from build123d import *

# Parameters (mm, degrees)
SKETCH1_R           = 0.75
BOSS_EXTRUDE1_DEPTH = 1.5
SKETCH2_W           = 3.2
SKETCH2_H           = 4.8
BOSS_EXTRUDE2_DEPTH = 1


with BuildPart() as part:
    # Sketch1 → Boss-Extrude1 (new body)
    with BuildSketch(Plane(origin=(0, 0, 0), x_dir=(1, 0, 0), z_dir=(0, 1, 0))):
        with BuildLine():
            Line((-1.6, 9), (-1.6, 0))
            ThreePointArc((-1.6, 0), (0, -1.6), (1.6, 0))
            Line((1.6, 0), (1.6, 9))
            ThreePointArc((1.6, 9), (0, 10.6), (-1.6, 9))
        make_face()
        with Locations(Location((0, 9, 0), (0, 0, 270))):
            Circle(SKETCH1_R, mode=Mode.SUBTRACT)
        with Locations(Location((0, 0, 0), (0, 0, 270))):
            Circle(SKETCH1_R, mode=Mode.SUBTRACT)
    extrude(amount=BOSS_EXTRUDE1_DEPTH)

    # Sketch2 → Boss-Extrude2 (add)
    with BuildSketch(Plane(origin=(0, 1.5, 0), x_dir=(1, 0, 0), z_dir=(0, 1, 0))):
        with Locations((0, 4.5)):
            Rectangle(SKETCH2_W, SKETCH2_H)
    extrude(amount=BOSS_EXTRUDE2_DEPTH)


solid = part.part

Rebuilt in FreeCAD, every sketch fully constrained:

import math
import FreeCAD as App
import Part
import Sketcher
from FreeCAD import Vector

doc = App.newDocument("Part")
body = doc.addObject("PartDesign::Body", "Body")

sketch1 = body.newObject("Sketcher::SketchObject", "Sketch")
sketch1.AttachmentSupport = (doc.getObject("XZ_Plane"), [""])
sketch1.MapMode = "FlatFace"
sketch1.addGeometry(Part.LineSegment(Vector(-1.6, -9, 0), Vector(-1.6, 0, 0)), False)
sketch1.addGeometry(Part.ArcOfCircle(Part.Circle(Vector(0, 0, 0), Vector(0, 0, 1), 1.6), math.radians(0), math.radians(180)), False)
sketch1.addGeometry(Part.LineSegment(Vector(1.6, 0, 0), Vector(1.6, -9, 0)), False)
sketch1.addGeometry(Part.ArcOfCircle(Part.Circle(Vector(0, -9, 0), Vector(0, 0, 1), 1.6), math.radians(180), math.radians(360)), False)
sketch1.addGeometry(Part.Circle(Vector(0, 0, 0), Vector(0, 0, 1), 0.8), False)
sketch1.addGeometry(Part.Circle(Vector(0, -9, 0), Vector(0, 0, 1), 0.8), False)
sketch1.addConstraint(Sketcher.Constraint("Tangent", 0, 2, 1, 2))
sketch1.addConstraint(Sketcher.Constraint("Tangent", 1, 1, 2, 1))
sketch1.addConstraint(Sketcher.Constraint("Tangent", 2, 2, 3, 2))
sketch1.addConstraint(Sketcher.Constraint("Tangent", 3, 1, 0, 1))
sketch1.addConstraint(Sketcher.Constraint("Vertical", 0))
sketch1.addConstraint(Sketcher.Constraint("Vertical", 2))
sketch1.addConstraint(Sketcher.Constraint("Coincident", 1, 3, -1, 1))
sketch1.addConstraint(Sketcher.Constraint("Coincident", 4, 3, -1, 1))
sketch1.addConstraint(Sketcher.Constraint("Coincident", 5, 3, 3, 3))
sketch1.addConstraint(Sketcher.Constraint("Equal", 4, 5))
sketch1.addConstraint(Sketcher.Constraint("Diameter", 4, 1.5))
sketch1.addConstraint(Sketcher.Constraint("Radius", 1, 1.6))
sketch1.addConstraint(Sketcher.Constraint("DistanceY", 0, 1, 0, 2, 9.0))
pad1 = body.newObject("PartDesign::Pad", "Pad")
pad1.Profile = sketch1
pad1.Length = 1.5
pad1.Reversed = True

sketch2 = body.newObject("Sketcher::SketchObject", "Sketch001")
sketch2.AttachmentSupport = (doc.getObject("XZ_Plane"), [""])
sketch2.MapMode = "FlatFace"
sketch2.AttachmentOffset = App.Placement(Vector(0, 0, -1.5), App.Rotation())
sketch2.addGeometry(Part.LineSegment(Vector(-1.6, -6.9, 0), Vector(-1.6, -2.1, 0)), False)
sketch2.addGeometry(Part.LineSegment(Vector(-1.6, -2.1, 0), Vector(1.6, -2.1, 0)), False)
sketch2.addGeometry(Part.LineSegment(Vector(1.6, -2.1, 0), Vector(1.6, -6.9, 0)), False)
sketch2.addGeometry(Part.LineSegment(Vector(1.6, -6.9, 0), Vector(-1.6, -6.9, 0)), False)
sketch2.addConstraint(Sketcher.Constraint("Coincident", 0, 2, 1, 1))
sketch2.addConstraint(Sketcher.Constraint("Coincident", 1, 2, 2, 1))
sketch2.addConstraint(Sketcher.Constraint("Coincident", 2, 2, 3, 1))
sketch2.addConstraint(Sketcher.Constraint("Coincident", 3, 2, 0, 1))
sketch2.addConstraint(Sketcher.Constraint("Vertical", 0))
sketch2.addConstraint(Sketcher.Constraint("Horizontal", 1))
sketch2.addConstraint(Sketcher.Constraint("Vertical", 2))
sketch2.addConstraint(Sketcher.Constraint("Horizontal", 3))
sketch2.addConstraint(Sketcher.Constraint("DistanceX", 1, 1, 1, 2, 3.2))
sketch2.addConstraint(Sketcher.Constraint("DistanceY", 0, 1, 0, 2, 4.8))
sketch2.addConstraint(Sketcher.Constraint("DistanceX", 0, 2, -1, 1, 1.6))
sketch2.addConstraint(Sketcher.Constraint("DistanceY", 0, 2, -1, 1, 2.1))
pad2 = body.newObject("PartDesign::Pad", "Pad001")
pad2.Profile = sketch2
pad2.Length = 1
pad2.Reversed = True

doc.recompute()
